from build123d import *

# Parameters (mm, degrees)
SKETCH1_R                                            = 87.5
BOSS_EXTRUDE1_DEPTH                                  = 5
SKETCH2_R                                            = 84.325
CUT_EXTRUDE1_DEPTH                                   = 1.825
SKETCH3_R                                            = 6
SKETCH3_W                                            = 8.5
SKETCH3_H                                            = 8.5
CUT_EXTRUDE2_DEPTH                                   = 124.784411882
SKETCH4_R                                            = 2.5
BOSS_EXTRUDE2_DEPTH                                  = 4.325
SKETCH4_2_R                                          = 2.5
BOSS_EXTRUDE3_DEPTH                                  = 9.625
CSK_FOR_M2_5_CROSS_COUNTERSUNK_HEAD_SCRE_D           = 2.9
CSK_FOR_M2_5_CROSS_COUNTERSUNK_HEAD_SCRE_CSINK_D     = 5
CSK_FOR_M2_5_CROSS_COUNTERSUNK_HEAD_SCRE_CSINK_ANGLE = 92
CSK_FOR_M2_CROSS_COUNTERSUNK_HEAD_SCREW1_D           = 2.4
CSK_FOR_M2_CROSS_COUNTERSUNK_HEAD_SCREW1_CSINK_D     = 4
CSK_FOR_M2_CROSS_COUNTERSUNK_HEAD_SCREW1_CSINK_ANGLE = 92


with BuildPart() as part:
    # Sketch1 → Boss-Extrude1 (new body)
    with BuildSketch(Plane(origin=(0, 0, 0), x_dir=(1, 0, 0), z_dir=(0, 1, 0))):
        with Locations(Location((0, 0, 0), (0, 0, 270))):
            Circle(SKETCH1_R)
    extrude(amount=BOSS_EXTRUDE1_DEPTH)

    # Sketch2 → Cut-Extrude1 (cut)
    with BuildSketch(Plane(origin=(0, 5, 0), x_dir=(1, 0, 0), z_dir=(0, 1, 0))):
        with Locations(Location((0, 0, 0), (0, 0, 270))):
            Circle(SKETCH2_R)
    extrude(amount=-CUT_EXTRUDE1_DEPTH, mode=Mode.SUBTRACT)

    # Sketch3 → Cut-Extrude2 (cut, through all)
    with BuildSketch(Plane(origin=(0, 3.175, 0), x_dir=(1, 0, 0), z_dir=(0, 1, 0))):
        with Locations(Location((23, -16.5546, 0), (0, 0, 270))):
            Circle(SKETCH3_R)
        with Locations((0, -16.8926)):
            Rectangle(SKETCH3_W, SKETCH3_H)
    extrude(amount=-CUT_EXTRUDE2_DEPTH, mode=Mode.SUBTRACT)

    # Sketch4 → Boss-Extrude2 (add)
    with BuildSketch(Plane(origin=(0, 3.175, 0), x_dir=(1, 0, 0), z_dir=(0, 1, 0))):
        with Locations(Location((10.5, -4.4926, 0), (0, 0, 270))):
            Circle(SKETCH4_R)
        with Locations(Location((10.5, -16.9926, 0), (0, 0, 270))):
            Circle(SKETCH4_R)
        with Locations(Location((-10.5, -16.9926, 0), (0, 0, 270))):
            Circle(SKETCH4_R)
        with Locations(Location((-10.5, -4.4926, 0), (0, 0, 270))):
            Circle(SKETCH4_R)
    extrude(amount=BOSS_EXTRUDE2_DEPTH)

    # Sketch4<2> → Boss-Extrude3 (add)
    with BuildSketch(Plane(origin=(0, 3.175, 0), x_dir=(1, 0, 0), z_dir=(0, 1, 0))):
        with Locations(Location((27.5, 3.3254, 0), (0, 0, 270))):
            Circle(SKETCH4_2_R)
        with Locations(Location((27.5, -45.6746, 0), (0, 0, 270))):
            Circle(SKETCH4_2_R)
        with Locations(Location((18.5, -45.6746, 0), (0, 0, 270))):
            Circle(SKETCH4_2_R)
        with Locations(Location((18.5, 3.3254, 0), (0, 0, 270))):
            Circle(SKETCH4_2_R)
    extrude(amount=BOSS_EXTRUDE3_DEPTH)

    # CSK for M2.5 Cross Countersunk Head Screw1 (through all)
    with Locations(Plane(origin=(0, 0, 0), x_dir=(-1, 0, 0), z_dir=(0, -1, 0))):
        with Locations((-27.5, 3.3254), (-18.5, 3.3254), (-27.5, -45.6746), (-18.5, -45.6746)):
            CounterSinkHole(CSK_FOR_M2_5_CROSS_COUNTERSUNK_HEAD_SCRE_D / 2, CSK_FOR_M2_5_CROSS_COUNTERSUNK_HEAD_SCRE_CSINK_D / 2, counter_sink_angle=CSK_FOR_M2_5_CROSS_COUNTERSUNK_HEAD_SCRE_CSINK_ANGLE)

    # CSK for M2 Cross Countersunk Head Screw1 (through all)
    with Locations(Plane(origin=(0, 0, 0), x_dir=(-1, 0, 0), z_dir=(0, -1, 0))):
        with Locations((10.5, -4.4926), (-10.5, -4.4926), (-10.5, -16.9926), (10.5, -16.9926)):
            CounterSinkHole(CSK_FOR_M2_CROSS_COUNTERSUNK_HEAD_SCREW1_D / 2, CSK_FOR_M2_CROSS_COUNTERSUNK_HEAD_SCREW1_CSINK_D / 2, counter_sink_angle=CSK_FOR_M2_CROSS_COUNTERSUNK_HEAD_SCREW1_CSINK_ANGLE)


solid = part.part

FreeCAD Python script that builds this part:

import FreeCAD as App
import Part
import Sketcher

V = App.Vector

doc = App.newDocument("Part")
body = doc.addObject("PartDesign::Body", "Body")

# Sketch on XZ plane
sketch1 = body.newObject("Sketcher::SketchObject", "Sketch")
sketch1.AttachmentSupport = (doc.getObject("XZ_Plane"), [""])
sketch1.MapMode = "FlatFace"
sketch1.addGeometry(Part.Circle(V(0, 0, 0), V(0, 0, 1), 88), False)
sketch1.addConstraint([
    Sketcher.Constraint("Coincident", 0, 3, -1, 1),
    Sketcher.Constraint("Diameter", 0, 175.0),
])
pad1 = body.newObject("PartDesign::Pad", "Pad")
pad1.Profile = sketch1
pad1.Length = 5
pad1.Reversed = True

# Sketch on XZ plane
sketch2 = body.newObject("Sketcher::SketchObject", "Sketch001")
sketch2.AttachmentSupport = (doc.getObject("XZ_Plane"), [""])
sketch2.MapMode = "FlatFace"
sketch2.AttachmentOffset = App.Placement(V(0, 0, -5), App.Rotation())
sketch2.addGeometry(Part.Circle(V(0, 0, 0), V(0, 0, 1), 84), False)
sketch2.addConstraint([
    Sketcher.Constraint("Coincident", 0, 3, -1, 1),
    Sketcher.Constraint("Diameter", 0, 168.65),
])
pocket1 = body.newObject("PartDesign::Pocket", "Pocket")
pocket1.Profile = sketch2
pocket1.Length = 1.825
pocket1.Reversed = True

# Sketch on XZ plane
sketch3 = body.newObject("Sketcher::SketchObject", "Sketch002")
sketch3.AttachmentSupport = (doc.getObject("XZ_Plane"), [""])
sketch3.MapMode = "FlatFace"
sketch3.AttachmentOffset = App.Placement(V(0, 0, -3.175), App.Rotation())
sketch3.addGeometry([
    Part.Circle(V(23, 17, 0), V(0, 0, 1), 6),  # 0
    Part.LineSegment(V(-4, 13, 0), V(-4, 21, 0)),  # 1
    Part.LineSegment(V(-4, 21, 0), V(4, 21, 0)),  # 2
    Part.LineSegment(V(4, 21, 0), V(4, 13, 0)),  # 3
    Part.LineSegment(V(4, 13, 0), V(-4, 13, 0)),  # 4
], False)
sketch3.addConstraint([
    Sketcher.Constraint("Coincident", 1, 2, 2, 1),
    Sketcher.Constraint("Coincident", 2, 2, 3, 1),
    Sketcher.Constraint("Coincident", 3, 2, 4, 1),
    Sketcher.Constraint("Coincident", 4, 2, 1, 1),
    Sketcher.Constraint("Vertical", 1),
    Sketcher.Constraint("Horizontal", 2),
    Sketcher.Constraint("Vertical", 3),
    Sketcher.Constraint("Horizontal", 4),
    Sketcher.Constraint("Equal", 4, 1),
    Sketcher.Constraint("Diameter", 0, 12.0),
    Sketcher.Constraint("DistanceX", 2, 1, 2, 2, 8.5),
    Sketcher.Constraint("DistanceX", -1, 1, 0, 3, 23.0),
    Sketcher.Constraint("DistanceX", 1, 2, -1, 1, 4.25),
    Sketcher.Constraint("DistanceY", 0, 3, 1, 2, 4.588),
    Sketcher.Constraint("DistanceY", -1, 1, 0, 3, 16.5546),
])
pocket2 = body.newObject("PartDesign::Pocket", "Pocket001")
pocket2.Profile = sketch3
pocket2.Type = "ThroughAll"
pocket2.Reversed = True

# Sketch on XZ plane
sketch4 = body.newObject("Sketcher::SketchObject", "Sketch003")
sketch4.AttachmentSupport = (doc.getObject("XZ_Plane"), [""])
sketch4.MapMode = "FlatFace"
sketch4.AttachmentOffset = App.Placement(V(0, 0, -3.175), App.Rotation())
sketch4.addGeometry([
    Part.Circle(V(10.5, 4.5, 0), V(0, 0, 1), 2.5),
    Part.Circle(V(10.5, 17, 0), V(0, 0, 1), 2.5),
    Part.Circle(V(-10.5, 17, 0), V(0, 0, 1), 2.5),
    Part.Circle(V(-10.5, 4.5, 0), V(0, 0, 1), 2.5),
], False)
sketch4.addConstraint([
    Sketcher.Constraint("Equal", 0, 1),
    Sketcher.Constraint("Equal", 1, 2),
    Sketcher.Constraint("Equal", 2, 3),
    Sketcher.Constraint("Symmetric", 1, 3, 2, 3, -2),
    Sketcher.Constraint("Symmetric", 0, 3, 3, 3, -2),
    Sketcher.Constraint("Vertical", 0, 3, 1, 3),
    Sketcher.Constraint("Diameter", 0, 5.0),
    Sketcher.Constraint("DistanceX", 2, 3, 1, 3, 21.0),
    Sketcher.Constraint("DistanceY", 0, 3, 1, 3, 12.5),
    Sketcher.Constraint("DistanceY", -1, 1, 0, 3, 4.4926),
])
pad2 = body.newObject("PartDesign::Pad", "Pad001")
pad2.Profile = sketch4
pad2.Length = 4.325
pad2.Reversed = True

# Sketch on XZ plane
sketch5 = body.newObject("Sketcher::SketchObject", "Sketch004")
sketch5.AttachmentSupport = (doc.getObject("XZ_Plane"), [""])
sketch5.MapMode = "FlatFace"
sketch5.AttachmentOffset = App.Placement(V(0, 0, -3.175), App.Rotation())
sketch5.addGeometry([
    Part.Circle(V(27.5, -3.3, 0), V(0, 0, 1), 2.5),
    Part.Circle(V(27.5, 45.7, 0), V(0, 0, 1), 2.5),
    Part.Circle(V(18.5, 45.7, 0), V(0, 0, 1), 2.5),
    Part.Circle(V(18.5, -3.3, 0), V(0, 0, 1), 2.5),
], False)
sketch5.addConstraint([
    Sketcher.Constraint("Equal", 0, 1),
    Sketcher.Constraint("Equal", 1, 2),
    Sketcher.Constraint("Equal", 2, 3),
    Sketcher.Constraint("Horizontal", 1, 3, 2, 3),
    Sketcher.Constraint("Horizontal", 0, 3, 3, 3),
    Sketcher.Constraint("Vertical", 0, 3, 1, 3),
    Sketcher.Constraint("Vertical", 2, 3, 3, 3),
    Sketcher.Constraint("Diameter", 0, 5.0),
    Sketcher.Constraint("DistanceY", 0, 3, 1, 3, 49.0),
    Sketcher.Constraint("DistanceX", 2, 3, 1, 3, 9.0),
    Sketcher.Constraint("DistanceX", -1, 1, 0, 3, 27.5),
    Sketcher.Constraint("DistanceY", 0, 3, -1, 1, 3.3254),
])
pad3 = body.newObject("PartDesign::Pad", "Pad002")
pad3.Profile = sketch5
pad3.Length = 9.625
pad3.Reversed = True

# Sketch on XZ plane
sketch6 = body.newObject("Sketcher::SketchObject", "Sketch005")
sketch6.AttachmentSupport = (doc.getObject("XZ_Plane"), [""])
sketch6.MapMode = "FlatFace"
sketch6.addGeometry([
    Part.Circle(V(27.5, -3.3, 0), V(0, 0, 1), 1.4),
    Part.Circle(V(18.5, -3.3, 0), V(0, 0, 1), 1.4),
    Part.Circle(V(27.5, 45.7, 0), V(0, 0, 1), 1.4),
    Part.Circle(V(18.5, 45.7, 0), V(0, 0, 1), 1.4),
], False)
sketch6.addConstraint([
    Sketcher.Constraint("Equal", 0, 1),
    Sketcher.Constraint("Equal", 1, 2),
    Sketcher.Constraint("Equal", 2, 3),
    Sketcher.Constraint("Horizontal", 0, 3, 1, 3),
    Sketcher.Constraint("Horizontal", 2, 3, 3, 3),
    Sketcher.Constraint("Vertical", 0, 3, 2, 3),
    Sketcher.Constraint("Vertical", 1, 3, 3, 3),
    Sketcher.Constraint("Diameter", 0, 2.9),
    Sketcher.Constraint("DistanceX", 1, 3, 0, 3, 9.0),
    Sketcher.Constraint("DistanceY", 0, 3, 2, 3, 49.0),
    Sketcher.Constraint("DistanceX", -1, 1, 0, 3, 27.5),
    Sketcher.Constraint("DistanceY", 0, 3, -1, 1, 3.3254),
])
doc.recompute()
hole = body.newObject("PartDesign::Hole", "Hole")
hole.Profile = sketch6
hole.ThreadType = "None"
hole.Diameter = 2.9
hole.DepthType = "ThroughAll"
hole.HoleCutType = "Countersink"
hole.HoleCutDiameter = 5
hole.HoleCutCountersinkAngle = 92

# Sketch on XZ plane
sketch7 = body.newObject("Sketcher::SketchObject", "Sketch006")
sketch7.AttachmentSupport = (doc.getObject("XZ_Plane"), [""])
sketch7.MapMode = "FlatFace"
sketch7.addGeometry([
    Part.Circle(V(-10.5, 4.5, 0), V(0, 0, 1), 1.2),
    Part.Circle(V(10.5, 4.5, 0), V(0, 0, 1), 1.2),
    Part.Circle(V(10.5, 17, 0), V(0, 0, 1), 1.2),
    Part.Circle(V(-10.5, 17, 0), V(0, 0, 1), 1.2),
], False)
sketch7.addConstraint([
    Sketcher.Constraint("Equal", 0, 1),
    Sketcher.Constraint("Equal", 1, 2),
    Sketcher.Constraint("Equal", 2, 3),
    Sketcher.Constraint("Symmetric", 0, 3, 1, 3, -2),
    Sketcher.Constraint("Symmetric", 2, 3, 3, 3, -2),
    Sketcher.Constraint("Vertical", 1, 3, 2, 3),
    Sketcher.Constraint("Diameter", 0, 2.4),
    Sketcher.Constraint("DistanceX", 0, 3, 1, 3, 21.0),
    Sketcher.Constraint("DistanceY", 1, 3, 2, 3, 12.5),
    Sketcher.Constraint("DistanceY", -1, 1, 0, 3, 4.4926),
])
doc.recompute()
hole2 = body.newObject("PartDesign::Hole", "Hole001")
hole2.Profile = sketch7
hole2.ThreadType = "None"
hole2.Diameter = 2.4
hole2.DepthType = "ThroughAll"
hole2.HoleCutType = "Countersink"
hole2.HoleCutDiameter = 4
hole2.HoleCutCountersinkAngle = 92

doc.recompute()
